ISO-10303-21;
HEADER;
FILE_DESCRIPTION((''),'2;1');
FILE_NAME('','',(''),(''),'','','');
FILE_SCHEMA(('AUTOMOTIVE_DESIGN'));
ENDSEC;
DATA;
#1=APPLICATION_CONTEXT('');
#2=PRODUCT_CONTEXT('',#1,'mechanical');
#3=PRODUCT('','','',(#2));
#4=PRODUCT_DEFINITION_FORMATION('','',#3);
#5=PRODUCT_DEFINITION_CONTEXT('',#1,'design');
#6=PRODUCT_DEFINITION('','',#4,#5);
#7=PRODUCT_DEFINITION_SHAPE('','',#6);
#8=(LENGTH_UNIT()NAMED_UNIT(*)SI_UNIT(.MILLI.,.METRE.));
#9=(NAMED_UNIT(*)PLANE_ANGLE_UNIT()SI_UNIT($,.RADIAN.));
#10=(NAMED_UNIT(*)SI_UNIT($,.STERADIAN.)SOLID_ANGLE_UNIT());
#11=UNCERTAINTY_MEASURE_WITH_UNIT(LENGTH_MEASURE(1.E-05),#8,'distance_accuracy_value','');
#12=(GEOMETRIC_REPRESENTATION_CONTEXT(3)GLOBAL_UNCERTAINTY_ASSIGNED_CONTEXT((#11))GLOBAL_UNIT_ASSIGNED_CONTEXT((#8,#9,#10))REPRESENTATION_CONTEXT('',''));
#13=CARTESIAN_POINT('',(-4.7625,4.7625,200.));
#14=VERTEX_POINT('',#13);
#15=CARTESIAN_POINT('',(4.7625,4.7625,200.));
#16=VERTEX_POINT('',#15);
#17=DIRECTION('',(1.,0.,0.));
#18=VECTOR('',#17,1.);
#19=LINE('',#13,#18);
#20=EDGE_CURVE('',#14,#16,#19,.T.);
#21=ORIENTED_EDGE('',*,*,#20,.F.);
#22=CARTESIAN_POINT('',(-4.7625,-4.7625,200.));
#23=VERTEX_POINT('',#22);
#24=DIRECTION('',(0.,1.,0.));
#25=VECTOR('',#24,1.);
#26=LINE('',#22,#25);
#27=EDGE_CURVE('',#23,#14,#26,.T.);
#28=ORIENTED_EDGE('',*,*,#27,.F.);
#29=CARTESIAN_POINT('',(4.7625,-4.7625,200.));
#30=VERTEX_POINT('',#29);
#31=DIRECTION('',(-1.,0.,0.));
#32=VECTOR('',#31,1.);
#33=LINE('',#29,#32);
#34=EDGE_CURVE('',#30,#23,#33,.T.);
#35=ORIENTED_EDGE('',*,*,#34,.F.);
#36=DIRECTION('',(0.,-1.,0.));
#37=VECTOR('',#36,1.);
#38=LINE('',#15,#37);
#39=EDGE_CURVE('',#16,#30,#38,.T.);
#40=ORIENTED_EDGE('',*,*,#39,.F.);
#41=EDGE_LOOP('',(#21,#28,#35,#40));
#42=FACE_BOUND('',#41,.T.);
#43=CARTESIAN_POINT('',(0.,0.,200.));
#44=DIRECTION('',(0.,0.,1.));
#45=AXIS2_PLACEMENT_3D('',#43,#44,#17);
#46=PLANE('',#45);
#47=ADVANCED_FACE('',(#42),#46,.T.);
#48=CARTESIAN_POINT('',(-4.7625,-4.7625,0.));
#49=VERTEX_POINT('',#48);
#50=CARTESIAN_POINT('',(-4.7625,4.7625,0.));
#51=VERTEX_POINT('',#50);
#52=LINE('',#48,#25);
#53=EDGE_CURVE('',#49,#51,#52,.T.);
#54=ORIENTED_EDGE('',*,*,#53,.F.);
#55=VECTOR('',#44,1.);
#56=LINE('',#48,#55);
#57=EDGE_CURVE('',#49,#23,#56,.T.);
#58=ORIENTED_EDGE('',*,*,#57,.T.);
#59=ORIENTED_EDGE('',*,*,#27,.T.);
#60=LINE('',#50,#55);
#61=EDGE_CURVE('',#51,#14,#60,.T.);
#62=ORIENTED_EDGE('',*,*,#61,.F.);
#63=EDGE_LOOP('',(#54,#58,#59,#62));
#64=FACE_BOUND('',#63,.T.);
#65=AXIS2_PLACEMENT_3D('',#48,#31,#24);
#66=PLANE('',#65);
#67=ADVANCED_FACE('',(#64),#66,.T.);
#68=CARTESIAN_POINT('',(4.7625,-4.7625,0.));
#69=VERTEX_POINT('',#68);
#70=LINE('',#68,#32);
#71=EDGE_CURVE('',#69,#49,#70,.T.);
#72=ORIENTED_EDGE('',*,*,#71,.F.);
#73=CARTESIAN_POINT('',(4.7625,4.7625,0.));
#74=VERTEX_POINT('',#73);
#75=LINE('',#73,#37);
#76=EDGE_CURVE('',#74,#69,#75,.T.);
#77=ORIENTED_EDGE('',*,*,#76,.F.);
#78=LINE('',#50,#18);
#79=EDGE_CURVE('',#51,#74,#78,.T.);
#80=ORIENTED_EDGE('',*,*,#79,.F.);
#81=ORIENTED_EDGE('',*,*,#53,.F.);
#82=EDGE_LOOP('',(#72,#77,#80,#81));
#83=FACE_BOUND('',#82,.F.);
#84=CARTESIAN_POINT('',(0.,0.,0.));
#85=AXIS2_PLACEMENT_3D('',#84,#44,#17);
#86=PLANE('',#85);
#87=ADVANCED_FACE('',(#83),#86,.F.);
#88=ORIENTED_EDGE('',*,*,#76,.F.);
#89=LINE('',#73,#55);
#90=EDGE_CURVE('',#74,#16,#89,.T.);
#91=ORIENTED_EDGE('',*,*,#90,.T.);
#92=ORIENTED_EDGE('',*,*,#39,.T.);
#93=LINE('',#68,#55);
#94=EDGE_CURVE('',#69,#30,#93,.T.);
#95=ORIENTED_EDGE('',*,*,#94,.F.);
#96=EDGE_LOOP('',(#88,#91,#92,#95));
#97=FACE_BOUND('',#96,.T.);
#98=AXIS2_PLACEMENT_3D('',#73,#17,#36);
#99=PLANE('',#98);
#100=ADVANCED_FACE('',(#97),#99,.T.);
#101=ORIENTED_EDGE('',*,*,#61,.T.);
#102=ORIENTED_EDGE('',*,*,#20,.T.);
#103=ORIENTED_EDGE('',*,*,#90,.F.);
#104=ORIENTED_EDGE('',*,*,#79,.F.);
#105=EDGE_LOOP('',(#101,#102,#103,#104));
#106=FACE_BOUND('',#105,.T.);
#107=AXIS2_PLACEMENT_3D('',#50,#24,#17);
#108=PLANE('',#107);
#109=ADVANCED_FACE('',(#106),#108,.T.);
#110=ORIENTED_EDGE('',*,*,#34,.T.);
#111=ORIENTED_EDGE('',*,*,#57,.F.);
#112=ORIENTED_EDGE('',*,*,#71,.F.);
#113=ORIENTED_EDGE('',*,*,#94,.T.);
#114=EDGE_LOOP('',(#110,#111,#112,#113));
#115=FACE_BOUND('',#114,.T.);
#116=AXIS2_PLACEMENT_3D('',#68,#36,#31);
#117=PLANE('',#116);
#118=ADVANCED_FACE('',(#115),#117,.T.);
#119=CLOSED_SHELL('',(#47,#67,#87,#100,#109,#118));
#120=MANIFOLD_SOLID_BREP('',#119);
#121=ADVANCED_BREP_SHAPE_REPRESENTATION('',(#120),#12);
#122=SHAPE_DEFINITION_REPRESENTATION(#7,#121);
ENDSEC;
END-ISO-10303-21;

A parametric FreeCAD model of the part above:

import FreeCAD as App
import Part
import Sketcher
from FreeCAD import Vector

doc = App.newDocument("Part")
body = doc.addObject("PartDesign::Body", "Body")

# Sketch on XY plane
sketch1 = doc.addObject("Sketcher::SketchObject", "Sketch")
body.addObject(sketch1)
sketch1.AttachmentSupport = (doc.XY_Plane, [""])
sketch1.MapMode = "FlatFace"
sketch1.addGeometry(Part.LineSegment(Vector(-5, -5, 0), Vector(5, -5, 0)), False)
sketch1.addGeometry(Part.LineSegment(Vector(5, -5, 0), Vector(5, 5, 0)), False)
sketch1.addGeometry(Part.LineSegment(Vector(5, 5, 0), Vector(-5, 5, 0)), False)
sketch1.addGeometry(Part.LineSegment(Vector(-5, 5, 0), Vector(-5, -5, 0)), False)
sketch1.addConstraint(Sketcher.Constraint("Coincident", 0, 2, 1, 1))
sketch1.addConstraint(Sketcher.Constraint("Coincident", 1, 2, 2, 1))
sketch1.addConstraint(Sketcher.Constraint("Coincident", 2, 2, 3, 1))
sketch1.addConstraint(Sketcher.Constraint("Coincident", 3, 2, 0, 1))
sketch1.addConstraint(Sketcher.Constraint("Horizontal", 0))
sketch1.addConstraint(Sketcher.Constraint("Vertical", 1))
sketch1.addConstraint(Sketcher.Constraint("Horizontal", 2))
sketch1.addConstraint(Sketcher.Constraint("Vertical", 3))
sketch1.addConstraint(Sketcher.Constraint("Symmetric", 0, 2, 2, 2, -1, 1))
sketch1.addConstraint(Sketcher.Constraint("Equal", 2, 1))
sketch1.addConstraint(Sketcher.Constraint("DistanceX", 0, 1, 0, 2, 9.525))
pad1 = doc.addObject("PartDesign::Pad", "Pad")
body.addObject(pad1)
pad1.Profile = sketch1
pad1.Length = 200

doc.recompute()
